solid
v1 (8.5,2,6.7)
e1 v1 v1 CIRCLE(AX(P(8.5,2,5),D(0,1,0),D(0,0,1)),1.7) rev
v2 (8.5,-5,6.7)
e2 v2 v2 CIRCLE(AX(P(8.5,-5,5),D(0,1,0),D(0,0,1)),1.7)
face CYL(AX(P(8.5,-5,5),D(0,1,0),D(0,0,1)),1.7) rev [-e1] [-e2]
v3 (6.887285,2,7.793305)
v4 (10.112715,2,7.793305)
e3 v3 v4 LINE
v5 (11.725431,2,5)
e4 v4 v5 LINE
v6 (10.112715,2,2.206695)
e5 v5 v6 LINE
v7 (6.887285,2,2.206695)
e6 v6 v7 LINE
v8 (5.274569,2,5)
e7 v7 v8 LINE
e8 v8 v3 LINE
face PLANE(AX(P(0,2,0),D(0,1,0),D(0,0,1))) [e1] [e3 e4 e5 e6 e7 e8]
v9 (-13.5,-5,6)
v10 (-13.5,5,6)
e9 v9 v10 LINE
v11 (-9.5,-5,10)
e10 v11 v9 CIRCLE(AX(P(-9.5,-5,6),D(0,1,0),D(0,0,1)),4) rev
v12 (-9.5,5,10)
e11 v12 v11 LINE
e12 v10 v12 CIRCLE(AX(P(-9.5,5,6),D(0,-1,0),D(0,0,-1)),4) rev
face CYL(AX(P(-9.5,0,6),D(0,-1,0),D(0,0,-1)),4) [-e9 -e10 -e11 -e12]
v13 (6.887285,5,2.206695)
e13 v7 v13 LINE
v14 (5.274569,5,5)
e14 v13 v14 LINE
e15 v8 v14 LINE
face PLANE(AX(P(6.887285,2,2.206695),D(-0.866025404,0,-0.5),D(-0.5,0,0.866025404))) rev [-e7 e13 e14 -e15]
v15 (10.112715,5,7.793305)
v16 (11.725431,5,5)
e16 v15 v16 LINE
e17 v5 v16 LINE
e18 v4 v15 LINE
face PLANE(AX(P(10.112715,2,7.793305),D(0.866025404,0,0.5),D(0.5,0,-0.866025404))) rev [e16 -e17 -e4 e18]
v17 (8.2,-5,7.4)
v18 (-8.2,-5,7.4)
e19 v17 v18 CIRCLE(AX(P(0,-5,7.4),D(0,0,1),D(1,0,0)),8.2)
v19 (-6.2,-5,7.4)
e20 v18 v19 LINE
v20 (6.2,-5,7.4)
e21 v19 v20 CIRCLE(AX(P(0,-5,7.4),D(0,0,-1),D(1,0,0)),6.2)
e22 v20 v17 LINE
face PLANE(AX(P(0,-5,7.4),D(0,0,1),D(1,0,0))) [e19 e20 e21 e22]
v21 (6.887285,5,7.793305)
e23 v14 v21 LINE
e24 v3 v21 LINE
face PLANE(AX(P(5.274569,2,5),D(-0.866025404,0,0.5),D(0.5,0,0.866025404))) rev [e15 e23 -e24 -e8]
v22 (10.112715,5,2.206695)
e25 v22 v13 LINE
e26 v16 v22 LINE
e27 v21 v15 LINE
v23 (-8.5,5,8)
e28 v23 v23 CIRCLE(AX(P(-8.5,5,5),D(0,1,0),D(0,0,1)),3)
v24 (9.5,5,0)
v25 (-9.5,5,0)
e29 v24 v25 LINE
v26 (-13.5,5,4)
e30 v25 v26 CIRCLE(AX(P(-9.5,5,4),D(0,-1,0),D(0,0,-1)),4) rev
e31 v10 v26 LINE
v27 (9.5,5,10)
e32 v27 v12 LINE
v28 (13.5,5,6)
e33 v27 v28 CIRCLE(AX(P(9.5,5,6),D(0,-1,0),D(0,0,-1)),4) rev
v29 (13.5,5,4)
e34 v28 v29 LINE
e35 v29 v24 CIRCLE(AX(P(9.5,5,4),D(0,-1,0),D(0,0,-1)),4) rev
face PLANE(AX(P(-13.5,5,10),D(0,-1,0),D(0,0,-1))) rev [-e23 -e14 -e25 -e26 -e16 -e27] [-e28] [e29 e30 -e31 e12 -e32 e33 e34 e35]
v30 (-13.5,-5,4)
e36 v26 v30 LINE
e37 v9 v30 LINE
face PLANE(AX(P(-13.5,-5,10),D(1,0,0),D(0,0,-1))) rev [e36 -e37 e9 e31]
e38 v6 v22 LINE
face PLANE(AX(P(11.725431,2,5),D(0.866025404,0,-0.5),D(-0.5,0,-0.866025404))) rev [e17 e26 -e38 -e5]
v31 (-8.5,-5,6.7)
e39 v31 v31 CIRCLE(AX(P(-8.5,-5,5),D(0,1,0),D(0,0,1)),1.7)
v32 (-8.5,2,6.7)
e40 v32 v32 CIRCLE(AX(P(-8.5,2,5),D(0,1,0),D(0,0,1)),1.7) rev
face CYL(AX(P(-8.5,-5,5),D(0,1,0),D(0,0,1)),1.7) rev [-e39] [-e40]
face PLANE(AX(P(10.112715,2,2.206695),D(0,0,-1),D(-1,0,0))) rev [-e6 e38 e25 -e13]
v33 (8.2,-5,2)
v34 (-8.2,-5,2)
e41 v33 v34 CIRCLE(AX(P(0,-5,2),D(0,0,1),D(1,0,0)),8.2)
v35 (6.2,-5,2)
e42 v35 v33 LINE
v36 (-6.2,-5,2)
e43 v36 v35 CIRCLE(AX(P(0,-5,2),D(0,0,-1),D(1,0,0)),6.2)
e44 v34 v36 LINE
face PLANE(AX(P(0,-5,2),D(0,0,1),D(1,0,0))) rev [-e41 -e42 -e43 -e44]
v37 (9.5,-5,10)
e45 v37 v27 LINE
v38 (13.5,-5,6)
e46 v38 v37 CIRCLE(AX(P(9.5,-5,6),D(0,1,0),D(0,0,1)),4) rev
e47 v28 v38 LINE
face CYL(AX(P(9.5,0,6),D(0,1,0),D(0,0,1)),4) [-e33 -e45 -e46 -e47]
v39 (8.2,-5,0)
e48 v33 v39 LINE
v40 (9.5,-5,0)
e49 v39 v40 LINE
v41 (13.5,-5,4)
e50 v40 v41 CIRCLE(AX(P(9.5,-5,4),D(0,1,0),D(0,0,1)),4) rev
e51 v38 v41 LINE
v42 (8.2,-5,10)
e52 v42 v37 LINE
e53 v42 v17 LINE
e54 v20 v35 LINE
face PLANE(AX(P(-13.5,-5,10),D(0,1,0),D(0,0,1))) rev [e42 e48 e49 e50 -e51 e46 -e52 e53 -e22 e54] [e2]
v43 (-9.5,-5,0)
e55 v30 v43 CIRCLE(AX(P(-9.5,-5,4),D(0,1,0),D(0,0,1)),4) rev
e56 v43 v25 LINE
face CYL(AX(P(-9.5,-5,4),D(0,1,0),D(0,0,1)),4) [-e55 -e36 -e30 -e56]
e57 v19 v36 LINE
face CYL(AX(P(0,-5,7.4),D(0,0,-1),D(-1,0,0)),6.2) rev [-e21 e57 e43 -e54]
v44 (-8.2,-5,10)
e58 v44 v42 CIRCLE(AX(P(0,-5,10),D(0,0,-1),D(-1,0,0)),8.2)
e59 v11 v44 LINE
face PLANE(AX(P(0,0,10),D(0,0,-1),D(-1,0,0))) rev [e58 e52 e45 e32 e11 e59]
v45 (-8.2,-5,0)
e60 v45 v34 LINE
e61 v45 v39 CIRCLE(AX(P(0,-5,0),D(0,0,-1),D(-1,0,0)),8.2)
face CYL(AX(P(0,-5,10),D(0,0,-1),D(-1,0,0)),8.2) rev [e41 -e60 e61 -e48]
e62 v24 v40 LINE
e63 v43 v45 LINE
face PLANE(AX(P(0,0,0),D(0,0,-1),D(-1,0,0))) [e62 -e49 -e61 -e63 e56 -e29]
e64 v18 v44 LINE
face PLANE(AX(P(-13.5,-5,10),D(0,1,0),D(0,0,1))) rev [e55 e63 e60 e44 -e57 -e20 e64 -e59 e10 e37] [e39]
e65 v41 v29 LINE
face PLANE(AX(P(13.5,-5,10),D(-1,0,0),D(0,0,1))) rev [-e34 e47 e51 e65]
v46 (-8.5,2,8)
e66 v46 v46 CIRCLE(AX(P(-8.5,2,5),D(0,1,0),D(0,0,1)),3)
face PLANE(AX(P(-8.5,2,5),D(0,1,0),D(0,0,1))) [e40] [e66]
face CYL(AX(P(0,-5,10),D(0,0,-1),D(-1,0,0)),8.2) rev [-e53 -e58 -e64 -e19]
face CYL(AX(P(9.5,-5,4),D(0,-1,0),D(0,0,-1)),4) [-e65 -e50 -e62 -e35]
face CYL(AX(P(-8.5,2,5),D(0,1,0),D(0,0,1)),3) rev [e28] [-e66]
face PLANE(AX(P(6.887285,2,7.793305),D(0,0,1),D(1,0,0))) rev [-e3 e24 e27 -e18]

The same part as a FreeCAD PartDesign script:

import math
import FreeCAD as App
import Part
import Sketcher
from FreeCAD import Vector
Q = App.Units.Quantity


def edges_at(feature, points):
    """Names of the edges that pass closest to the given points."""
    edges = feature.Shape.Edges
    near = lambda p: min(range(len(edges)), key=lambda i: edges[i].distToShape(Part.Vertex(*p))[0])
    return sorted({f"Edge{near(p) + 1}" for p in points})


def add_polygon(sketch, points):
    """Adds a closed chain of lines whose ends are joined by coincident constraints."""
    first, n = sketch.GeometryCount, len(points)
    for a, b in zip(points, points[1:] + points[:1]):
        sketch.addGeometry(Part.LineSegment(App.Vector(*a, 0), App.Vector(*b, 0)), False)
    for i in range(n):
        sketch.addConstraint(Sketcher.Constraint("Coincident", first + i, 2, first + (i + 1) % n, 1))

doc = App.newDocument("Part")
params = doc.addObject("Spreadsheet::Sheet", "Params")
for row, (alias, value) in enumerate([
    ("sketch1_width", "27 mm"),
    ("sketch1_height", "10 mm"),
    ("pad1_length", "10 mm"),
    ("fillet_radius", "4 mm"),
    ("sketch2_diameter", "16.4 mm"),
    ("sketch3_radius", "8.2 mm"),
    ("sketch3_radius2", "6.2 mm"),
    ("pad2_length", "5.4 mm"),
    ("sketch4_diameter", "3.4 mm"),
    ("sketch5_diameter", "6 mm"),
    ("pocket3_length", "3 mm"),
], start=1):
    params.set(f"A{row}", alias)
    params.set(f"B{row}", "=" + value)
    params.setAlias(f"B{row}", alias)

body = doc.addObject("PartDesign::Body", "Body")

sketch1 = doc.addObject("Sketcher::SketchObject", "Sketch")
body.addObject(sketch1)
sketch1.AttachmentSupport = (doc.XY_Plane, [""])
sketch1.MapMode = "FlatFace"
add_polygon(sketch1, [(-14, 5), (-14, -5), (14, -5), (14, 5)])
sketch1.addConstraint(Sketcher.Constraint("Vertical", 0))
sketch1.addConstraint(Sketcher.Constraint("Horizontal", 1))
sketch1.addConstraint(Sketcher.Constraint("Vertical", 2))
sketch1.addConstraint(Sketcher.Constraint("Horizontal", 3))
sketch1.addConstraint(Sketcher.Constraint("Symmetric", 0, 2, 2, 2, -1, 1))
sketch1.addConstraint(Sketcher.Constraint("DistanceX", 1, 1, 1, 2, 27.0))
sketch1.addConstraint(Sketcher.Constraint("DistanceY", 0, 2, 0, 1, 10.0))
sketch1.setExpression("Constraints[9]", "Params.sketch1_width")
sketch1.setExpression("Constraints[10]", "Params.sketch1_height")
pad1 = doc.addObject("PartDesign::Pad", "Pad")
body.addObject(pad1)
pad1.Profile = sketch1
pad1.setExpression("Length", "Params.pad1_length")
doc.recompute()

fillet = doc.addObject("PartDesign::Fillet", "Fillet")
body.addObject(fillet)
fillet.Base = (pad1, edges_at(pad1, [
    (-13.5, 0, 10),
    (13.5, 0, 10),
    (-13.5, 0, 0),
    (13.5, 0, 0),
]))
fillet.setExpression("Radius", "Params.fillet_radius")

sketch2 = doc.addObject("Sketcher::SketchObject", "Sketch001")
body.addObject(sketch2)
sketch2.AttachmentSupport = (doc.XY_Plane, [""])
sketch2.MapMode = "FlatFace"
sketch2.addGeometry(Part.Circle(Vector(0, -5, 0), Vector(0, 0, 1), 8), False)
sketch2.addConstraint(Sketcher.Constraint("PointOnObject", 0, 3, -2))
sketch2.addConstraint(Sketcher.Constraint("Diameter", 0, 16.4))
sketch2.addConstraint(Sketcher.Constraint("DistanceY", 0, 3, -1, 1, 5.0))
sketch2.setExpression("Constraints[1]", "Params.sketch2_diameter")
pocket1 = doc.addObject("PartDesign::Pocket", "Pocket")
body.addObject(pocket1)
pocket1.Profile = sketch2
pocket1.Type = "ThroughAll"
pocket1.Reversed = True

sketch3 = doc.addObject("Sketcher::SketchObject", "Sketch002")
body.addObject(sketch3)
sketch3.AttachmentSupport = (doc.XY_Plane, [""])
sketch3.MapMode = "FlatFace"
sketch3.AttachmentOffset = App.Placement(Vector(0, 0, 2), App.Rotation())
sketch3.addGeometry(Part.LineSegment(Vector(6.2, -5, 0), Vector(8.2, -5, 0)), False)
sketch3.addGeometry(Part.ArcOfCircle(Part.Circle(Vector(0, -5, 0), Vector(0, 0, 1), 8.2), math.radians(0), math.radians(180)), False)
sketch3.addGeometry(Part.LineSegment(Vector(-8.2, -5, 0), Vector(-6.2, -5, 0)), False)
sketch3.addGeometry(Part.ArcOfCircle(Part.Circle(Vector(0, -5, 0), Vector(0, 0, 1), 6.2), math.radians(0), math.radians(180)), False)
sketch3.addConstraint(Sketcher.Constraint("Coincident", 0, 2, 1, 1))
sketch3.addConstraint(Sketcher.Constraint("Coincident", 1, 2, 2, 1))
sketch3.addConstraint(Sketcher.Constraint("Coincident", 2, 2, 3, 2))
sketch3.addConstraint(Sketcher.Constraint("Coincident", 3, 1, 0, 1))
sketch3.addConstraint(Sketcher.Constraint("Horizontal", 0))
sketch3.addConstraint(Sketcher.Constraint("Horizontal", 2))
sketch3.addConstraint(Sketcher.Constraint("Coincident", 3, 3, 1, 3))
sketch3.addConstraint(Sketcher.Constraint("Symmetric", 0, 2, 1, 2, -2))
sketch3.addConstraint(Sketcher.Constraint("Horizontal", 3, 3, 0, 2))
sketch3.addConstraint(Sketcher.Constraint("Radius", 1, 8.2))
sketch3.addConstraint(Sketcher.Constraint("Radius", 3, 6.2))
sketch3.addConstraint(Sketcher.Constraint("DistanceY", 1, 3, -1, 1, 5.0))
sketch3.setExpression("Constraints[9]", "Params.sketch3_radius")
sketch3.setExpression("Constraints[10]", "Params.sketch3_radius2")
pad2 = doc.addObject("PartDesign::Pad", "Pad001")
body.addObject(pad2)
pad2.Profile = sketch3
pad2.setExpression("Length", "Params.pad2_length")

sketch4 = doc.addObject("Sketcher::SketchObject", "Sketch003")
body.addObject(sketch4)
sketch4.AttachmentSupport = (doc.XZ_Plane, [""])
sketch4.MapMode = "FlatFace"
sketch4.AttachmentOffset = App.Placement(Vector(0, 0, -5), App.Rotation())
sketch4.addGeometry(Part.Circle(Vector(-8.5, 5, 0), Vector(0, 0, 1), 1.7), False)
sketch4.addGeometry(Part.Circle(Vector(8.5, 5, 0), Vector(0, 0, 1), 1.7), False)
sketch4.addConstraint(Sketcher.Constraint("Equal", 0, 1))
sketch4.addConstraint(Sketcher.Constraint("Symmetric", 0, 3, 1, 3, -2))
sketch4.addConstraint(Sketcher.Constraint("Diameter", 0, 3.4))
sketch4.addConstraint(Sketcher.Constraint("DistanceY", -1, 1, 0, 3, 5.0))
sketch4.addConstraint(Sketcher.Constraint("DistanceX", 0, 3, 1, 3, 17.0))
sketch4.setExpression("Constraints[2]", "Params.sketch4_diameter")
pocket2 = doc.addObject("PartDesign::Pocket", "Pocket001")
body.addObject(pocket2)
pocket2.Profile = sketch4
pocket2.Type = "ThroughAll"
pocket2.Reversed = True

sketch5 = doc.addObject("Sketcher::SketchObject", "Sketch004")
body.addObject(sketch5)
sketch5.AttachmentSupport = (doc.XZ_Plane, [""])
sketch5.MapMode = "FlatFace"
sketch5.AttachmentOffset = App.Placement(Vector(0, 0, -5), App.Rotation())
sketch5.addGeometry(Part.Circle(Vector(-8.5, 5, 0), Vector(0, 0, 1), 3), False)
add_polygon(sketch5, [(6.9, 7.8), (10.1, 7.8), (11.7, 5), (10.1, 2.2), (6.9, 2.2), (5.3, 5)])
sketch5.addConstraint(Sketcher.Constraint("Horizontal", 1))
sketch5.addConstraint(Sketcher.Constraint("Horizontal", 4))
sketch5.addConstraint(Sketcher.Constraint("Parallel", 2, 5))
sketch5.addConstraint(Sketcher.Constraint("Parallel", 3, 6))
sketch5.addConstraint(Sketcher.Constraint("Horizontal", 0, 3, 2, 2))
sketch5.addConstraint(Sketcher.Constraint("Horizontal", 2, 2, 5, 2))
sketch5.addConstraint(Sketcher.Constraint("Vertical", 1, 2, 3, 2))
sketch5.addConstraint(Sketcher.Constraint("Vertical", 4, 2, 6, 2))
sketch5.addConstraint(Sketcher.Constraint("Diameter", 0, 6.0))
sketch5.addConstraint(Sketcher.Constraint("Angle", 2, Q("-60 deg")))
sketch5.addConstraint(Sketcher.Constraint("DistanceY", -1, 1, 0, 3, 5.0))
sketch5.addConstraint(Sketcher.Constraint("DistanceX", 0, 3, -1, 1, 8.5))
sketch5.addConstraint(Sketcher.Constraint("DistanceX", 1, 1, 1, 2, 3.225431))
sketch5.addConstraint(Sketcher.Constraint("Distance", 2, 3.225431))
sketch5.addConstraint(Sketcher.Constraint("DistanceX", -1, 1, 2, 2, 11.725431))
sketch5.setExpression("Constraints[14]", "Params.sketch5_diameter")
pocket3 = doc.addObject("PartDesign::Pocket", "Pocket002")
body.addObject(pocket3)
pocket3.Profile = sketch5
pocket3.setExpression("Length", "Params.pocket3_length")
pocket3.Reversed = True

doc.recompute()
